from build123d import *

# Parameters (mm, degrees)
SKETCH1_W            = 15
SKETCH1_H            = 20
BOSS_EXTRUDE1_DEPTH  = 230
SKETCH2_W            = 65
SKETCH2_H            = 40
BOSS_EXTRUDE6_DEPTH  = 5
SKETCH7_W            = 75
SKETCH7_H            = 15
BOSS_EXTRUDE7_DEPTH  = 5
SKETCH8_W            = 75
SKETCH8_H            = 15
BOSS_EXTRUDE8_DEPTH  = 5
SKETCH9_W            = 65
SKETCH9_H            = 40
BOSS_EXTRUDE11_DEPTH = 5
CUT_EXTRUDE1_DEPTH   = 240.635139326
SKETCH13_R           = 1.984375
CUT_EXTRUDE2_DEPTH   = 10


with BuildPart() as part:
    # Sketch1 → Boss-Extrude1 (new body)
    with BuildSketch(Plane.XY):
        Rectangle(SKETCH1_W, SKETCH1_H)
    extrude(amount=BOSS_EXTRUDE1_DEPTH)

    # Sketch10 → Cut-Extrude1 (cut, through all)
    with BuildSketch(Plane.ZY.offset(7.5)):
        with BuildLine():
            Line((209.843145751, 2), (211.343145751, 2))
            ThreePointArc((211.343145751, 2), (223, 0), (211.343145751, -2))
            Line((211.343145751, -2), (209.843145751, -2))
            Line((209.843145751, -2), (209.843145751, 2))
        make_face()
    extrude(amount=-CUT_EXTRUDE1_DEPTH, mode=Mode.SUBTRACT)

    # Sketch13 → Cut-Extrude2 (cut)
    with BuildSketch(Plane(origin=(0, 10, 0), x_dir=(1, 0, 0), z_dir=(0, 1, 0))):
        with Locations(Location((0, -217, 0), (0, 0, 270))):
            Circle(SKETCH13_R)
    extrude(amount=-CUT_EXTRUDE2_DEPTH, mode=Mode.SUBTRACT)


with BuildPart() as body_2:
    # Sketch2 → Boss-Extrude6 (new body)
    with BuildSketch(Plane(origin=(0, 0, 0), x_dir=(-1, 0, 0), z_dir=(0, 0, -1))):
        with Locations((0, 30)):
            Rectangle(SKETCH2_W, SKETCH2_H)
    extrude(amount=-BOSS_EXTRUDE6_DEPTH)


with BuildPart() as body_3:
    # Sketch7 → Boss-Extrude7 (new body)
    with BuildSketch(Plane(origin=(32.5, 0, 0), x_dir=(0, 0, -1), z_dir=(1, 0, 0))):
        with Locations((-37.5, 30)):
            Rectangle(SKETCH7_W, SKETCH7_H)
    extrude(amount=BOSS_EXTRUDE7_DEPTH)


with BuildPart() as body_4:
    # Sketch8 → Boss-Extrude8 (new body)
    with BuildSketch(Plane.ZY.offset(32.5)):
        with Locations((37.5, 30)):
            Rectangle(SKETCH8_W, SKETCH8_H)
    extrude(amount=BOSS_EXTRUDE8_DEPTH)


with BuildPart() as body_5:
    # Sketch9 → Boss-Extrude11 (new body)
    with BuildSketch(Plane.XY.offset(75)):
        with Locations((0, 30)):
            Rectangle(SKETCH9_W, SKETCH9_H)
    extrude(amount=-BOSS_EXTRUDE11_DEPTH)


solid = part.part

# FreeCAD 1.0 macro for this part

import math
import FreeCAD as App
import Part
import Sketcher
Q = App.Units.Quantity


def add_polygon(sketch, points):
    """Adds a closed chain of lines whose ends are joined by coincident constraints."""
    first, n = sketch.GeometryCount, len(points)
    for a, b in zip(points, points[1:] + points[:1]):
        sketch.addGeometry(Part.LineSegment(App.Vector(*a, 0), App.Vector(*b, 0)), False)
    for i in range(n):
        sketch.addConstraint(Sketcher.Constraint("Coincident", first + i, 2, first + (i + 1) % n, 1))

doc = App.newDocument("Part")
params = doc.addObject("Spreadsheet::Sheet", "Params")
for row, (alias, value) in enumerate([
    ("sketch1_width", "15 mm"),
    ("sketch1_height", "20 mm"),
    ("pad1_length", "230 mm"),
    ("sketch2_radius", "6 mm"),
    ("sketch2_width", "4 mm"),
    ("sketch2_height", "1.5 mm"),
    ("pocket2_length", "10 mm"),
    ("sketch4_width", "65 mm"),
    ("sketch4_height", "40 mm"),
    ("pad2_length", "5 mm"),
    ("sketch5_width", "15 mm"),
    ("sketch5_height", "75 mm"),
    ("pad3_length", "5 mm"),
    ("sketch6_width", "15 mm"),
    ("sketch6_height", "75 mm"),
    ("pad4_length", "5 mm"),
    ("sketch7_width", "65 mm"),
    ("sketch7_height", "40 mm"),
    ("pad5_length", "5 mm"),
], start=1):
    params.set(f"A{row}", alias)
    params.set(f"B{row}", "=" + value)
    params.setAlias(f"B{row}", alias)

body = doc.addObject("PartDesign::Body", "Body")

sketch1 = body.newObject("Sketcher::SketchObject", "Sketch")
sketch1.AttachmentSupport = (doc.getObject("XY_Plane"), [""])
sketch1.MapMode = "FlatFace"
add_polygon(sketch1, [(-8, 10), (-8, -10), (8, -10), (8, 10)])
sketch1.addConstraint([
    Sketcher.Constraint("Vertical", 0),
    Sketcher.Constraint("Horizontal", 1),
    Sketcher.Constraint("Vertical", 2),
    Sketcher.Constraint("Horizontal", 3),
    Sketcher.Constraint("Symmetric", 0, 2, 2, 2, -1, 1),
    Sketcher.Constraint("DistanceX", 1, 1, 1, 2, Q("15 mm")),
    Sketcher.Constraint("DistanceY", 0, 2, 0, 1, Q("20 mm")),
])
sketch1.setExpression("Constraints[9]", "Params.sketch1_width")
sketch1.setExpression("Constraints[10]", "Params.sketch1_height")
pad1 = body.newObject("PartDesign::Pad", "Pad")
pad1.Profile = sketch1
pad1.setExpression("Length", "Params.pad1_length")

sketch2 = body.newObject("Sketcher::SketchObject", "Sketch001")
sketch2.AttachmentSupport = (doc.getObject("YZ_Plane"), [""])
sketch2.MapMode = "FlatFace"
sketch2.AttachmentOffset = App.Placement(App.Vector(0, 0, -7.5), App.Rotation())
sketch2.addGeometry([
    Part.LineSegment(App.Vector(2, 211.3, 0), App.Vector(2, 209.8, 0)),
    Part.LineSegment(App.Vector(2, 209.8, 0), App.Vector(-2, 209.8, 0)),
    Part.LineSegment(App.Vector(-2, 209.8, 0), App.Vector(-2, 211.3, 0)),
    Part.ArcOfCircle(Part.Circle(App.Vector(0, 217, 0), App.Vector(0, 0, 1), 6), math.radians(-71), math.radians(251)),
], False)
sketch2.addConstraint([
    Sketcher.Constraint("Coincident", 0, 2, 1, 1),
    Sketcher.Constraint("Coincident", 1, 2, 2, 1),
    Sketcher.Constraint("Coincident", 2, 2, 3, 2),
    Sketcher.Constraint("Coincident", 3, 1, 0, 1),
    Sketcher.Constraint("Vertical", 0),
    Sketcher.Constraint("Horizontal", 1),
    Sketcher.Constraint("Vertical", 2),
    Sketcher.Constraint("Symmetric", 2, 2, 3, 1, -2),
    Sketcher.Constraint("Radius", 3, Q("6 mm")),
    Sketcher.Constraint("DistanceX", 1, 2, 1, 1, Q("4 mm")),
    Sketcher.Constraint("DistanceY", 0, 2, 0, 1, Q("1.5 mm")),
    Sketcher.Constraint("DistanceY", -1, 1, 3, 3, Q("217 mm")),
])
sketch2.setExpression("Constraints[8]", "Params.sketch2_radius")
sketch2.setExpression("Constraints[9]", "Params.sketch2_width")
sketch2.setExpression("Constraints[10]", "Params.sketch2_height")
pocket1 = body.newObject("PartDesign::Pocket", "Pocket")
pocket1.Profile = sketch2
pocket1.Type = "ThroughAll"
pocket1.Reversed = True

sketch3 = body.newObject("Sketcher::SketchObject", "Sketch002")
sketch3.AttachmentSupport = (doc.getObject("XZ_Plane"), [""])
sketch3.MapMode = "FlatFace"
sketch3.AttachmentOffset = App.Placement(App.Vector(0, 0, -10), App.Rotation())
sketch3.addGeometry(Part.Circle(App.Vector(0, 217, 0), App.Vector(0, 0, 1), 2), False)
sketch3.addConstraint([
    Sketcher.Constraint("PointOnObject", 0, 3, -2),
    Sketcher.Constraint("DistanceY", -1, 1, 0, 3, Q("217 mm")),
    Sketcher.Constraint("Diameter", 0, Q("3.96875 mm")),
])
pocket2 = body.newObject("PartDesign::Pocket", "Pocket001")
pocket2.Profile = sketch3
pocket2.setExpression("Length", "Params.pocket2_length")
pocket2.Reversed = True
body2 = doc.addObject("PartDesign::Body", "Body001")

sketch4 = body2.newObject("Sketcher::SketchObject", "Sketch003")
sketch4.AttachmentSupport = (doc.getObject("XY_Plane001"), [""])
sketch4.MapMode = "FlatFace"
add_polygon(sketch4, [(32, 50), (32, 10), (-32, 10), (-32, 50)])
sketch4.addConstraint([
    Sketcher.Constraint("Vertical", 0),
    Sketcher.Constraint("Horizontal", 1),
    Sketcher.Constraint("Vertical", 2),
    Sketcher.Constraint("Horizontal", 3),
    Sketcher.Constraint("DistanceX", 1, 2, 1, 1, Q("65 mm")),
    Sketcher.Constraint("DistanceY", 0, 2, 0, 1, Q("40 mm")),
    Sketcher.Constraint("DistanceY", -1, 1, 0, 2, Q("10 mm")),
    Sketcher.Constraint("DistanceX", -1, 1, 0, 2, Q("32.5 mm")),
])
sketch4.setExpression("Constraints[8]", "Params.sketch4_width")
sketch4.setExpression("Constraints[9]", "Params.sketch4_height")
pad2 = body2.newObject("PartDesign::Pad", "Pad001")
pad2.Profile = sketch4
pad2.setExpression("Length", "Params.pad2_length")
body3 = doc.addObject("PartDesign::Body", "Body002")

sketch5 = body3.newObject("Sketcher::SketchObject", "Sketch004")
sketch5.AttachmentSupport = (doc.getObject("YZ_Plane002"), [""])
sketch5.MapMode = "FlatFace"
sketch5.AttachmentOffset = App.Placement(App.Vector(0, 0, 32.5), App.Rotation())
add_polygon(sketch5, [(38, 75), (22, 75), (22, 0), (38, 0)])
sketch5.addConstraint([
    Sketcher.Constraint("Horizontal", 0),
    Sketcher.Constraint("Vertical", 1),
    Sketcher.Constraint("Horizontal", 2),
    Sketcher.Constraint("Vertical", 3),
    Sketcher.Constraint("PointOnObject", 1, 2, -1),
    Sketcher.Constraint("DistanceX", 0, 2, 0, 1, Q("15 mm")),
    Sketcher.Constraint("DistanceY", 1, 2, 1, 1, Q("75 mm")),
    Sketcher.Constraint("DistanceX", -1, 1, 0, 2, Q("22.5 mm")),
])
sketch5.setExpression("Constraints[9]", "Params.sketch5_width")
sketch5.setExpression("Constraints[10]", "Params.sketch5_height")
pad3 = body3.newObject("PartDesign::Pad", "Pad002")
pad3.Profile = sketch5
pad3.setExpression("Length", "Params.pad3_length")
body4 = doc.addObject("PartDesign::Body", "Body003")

sketch6 = body4.newObject("Sketcher::SketchObject", "Sketch005")
sketch6.AttachmentSupport = (doc.getObject("YZ_Plane003"), [""])
sketch6.MapMode = "FlatFace"
sketch6.AttachmentOffset = App.Placement(App.Vector(0, 0, -32.5), App.Rotation())
add_polygon(sketch6, [(38, 0), (22, 0), (22, 75), (38, 75)])
sketch6.addConstraint([
    Sketcher.Constraint("Horizontal", 0),
    Sketcher.Constraint("Vertical", 1),
    Sketcher.Constraint("Horizontal", 2),
    Sketcher.Constraint("Vertical", 3),
    Sketcher.Constraint("PointOnObject", 0, 2, -1),
    Sketcher.Constraint("DistanceX", 0, 2, 0, 1, Q("15 mm")),
    Sketcher.Constraint("DistanceY", 1, 1, 1, 2, Q("75 mm")),
    Sketcher.Constraint("DistanceX", -1, 1, 0, 2, Q("22.5 mm")),
])
sketch6.setExpression("Constraints[9]", "Params.sketch6_width")
sketch6.setExpression("Constraints[10]", "Params.sketch6_height")
pad4 = body4.newObject("PartDesign::Pad", "Pad003")
pad4.Profile = sketch6
pad4.setExpression("Length", "Params.pad4_length")
pad4.Reversed = True
body5 = doc.addObject("PartDesign::Body", "Body004")

sketch7 = body5.newObject("Sketcher::SketchObject", "Sketch006")
sketch7.AttachmentSupport = (doc.getObject("XY_Plane004"), [""])
sketch7.MapMode = "FlatFace"
sketch7.AttachmentOffset = App.Placement(App.Vector(0, 0, 75), App.Rotation())
add_polygon(sketch7, [(-32, 50), (-32, 10), (32, 10), (32, 50)])
sketch7.addConstraint([
    Sketcher.Constraint("Vertical", 0),
    Sketcher.Constraint("Horizontal", 1),
    Sketcher.Constraint("Vertical", 2),
    Sketcher.Constraint("Horizontal", 3),
    Sketcher.Constraint("DistanceX", 1, 1, 1, 2, Q("65 mm")),
    Sketcher.Constraint("DistanceY", 0, 2, 0, 1, Q("40 mm")),
    Sketcher.Constraint("DistanceY", -1, 1, 0, 2, Q("10 mm")),
    Sketcher.Constraint("DistanceX", 0, 2, -1, 1, Q("32.5 mm")),
])
sketch7.setExpression("Constraints[8]", "Params.sketch7_width")
sketch7.setExpression("Constraints[9]", "Params.sketch7_height")
pad5 = body5.newObject("PartDesign::Pad", "Pad004")
pad5.Profile = sketch7
pad5.setExpression("Length", "Params.pad5_length")
pad5.Reversed = True
body2.Visibility = False
body3.Visibility = False
body4.Visibility = False
body5.Visibility = False

doc.recompute()
